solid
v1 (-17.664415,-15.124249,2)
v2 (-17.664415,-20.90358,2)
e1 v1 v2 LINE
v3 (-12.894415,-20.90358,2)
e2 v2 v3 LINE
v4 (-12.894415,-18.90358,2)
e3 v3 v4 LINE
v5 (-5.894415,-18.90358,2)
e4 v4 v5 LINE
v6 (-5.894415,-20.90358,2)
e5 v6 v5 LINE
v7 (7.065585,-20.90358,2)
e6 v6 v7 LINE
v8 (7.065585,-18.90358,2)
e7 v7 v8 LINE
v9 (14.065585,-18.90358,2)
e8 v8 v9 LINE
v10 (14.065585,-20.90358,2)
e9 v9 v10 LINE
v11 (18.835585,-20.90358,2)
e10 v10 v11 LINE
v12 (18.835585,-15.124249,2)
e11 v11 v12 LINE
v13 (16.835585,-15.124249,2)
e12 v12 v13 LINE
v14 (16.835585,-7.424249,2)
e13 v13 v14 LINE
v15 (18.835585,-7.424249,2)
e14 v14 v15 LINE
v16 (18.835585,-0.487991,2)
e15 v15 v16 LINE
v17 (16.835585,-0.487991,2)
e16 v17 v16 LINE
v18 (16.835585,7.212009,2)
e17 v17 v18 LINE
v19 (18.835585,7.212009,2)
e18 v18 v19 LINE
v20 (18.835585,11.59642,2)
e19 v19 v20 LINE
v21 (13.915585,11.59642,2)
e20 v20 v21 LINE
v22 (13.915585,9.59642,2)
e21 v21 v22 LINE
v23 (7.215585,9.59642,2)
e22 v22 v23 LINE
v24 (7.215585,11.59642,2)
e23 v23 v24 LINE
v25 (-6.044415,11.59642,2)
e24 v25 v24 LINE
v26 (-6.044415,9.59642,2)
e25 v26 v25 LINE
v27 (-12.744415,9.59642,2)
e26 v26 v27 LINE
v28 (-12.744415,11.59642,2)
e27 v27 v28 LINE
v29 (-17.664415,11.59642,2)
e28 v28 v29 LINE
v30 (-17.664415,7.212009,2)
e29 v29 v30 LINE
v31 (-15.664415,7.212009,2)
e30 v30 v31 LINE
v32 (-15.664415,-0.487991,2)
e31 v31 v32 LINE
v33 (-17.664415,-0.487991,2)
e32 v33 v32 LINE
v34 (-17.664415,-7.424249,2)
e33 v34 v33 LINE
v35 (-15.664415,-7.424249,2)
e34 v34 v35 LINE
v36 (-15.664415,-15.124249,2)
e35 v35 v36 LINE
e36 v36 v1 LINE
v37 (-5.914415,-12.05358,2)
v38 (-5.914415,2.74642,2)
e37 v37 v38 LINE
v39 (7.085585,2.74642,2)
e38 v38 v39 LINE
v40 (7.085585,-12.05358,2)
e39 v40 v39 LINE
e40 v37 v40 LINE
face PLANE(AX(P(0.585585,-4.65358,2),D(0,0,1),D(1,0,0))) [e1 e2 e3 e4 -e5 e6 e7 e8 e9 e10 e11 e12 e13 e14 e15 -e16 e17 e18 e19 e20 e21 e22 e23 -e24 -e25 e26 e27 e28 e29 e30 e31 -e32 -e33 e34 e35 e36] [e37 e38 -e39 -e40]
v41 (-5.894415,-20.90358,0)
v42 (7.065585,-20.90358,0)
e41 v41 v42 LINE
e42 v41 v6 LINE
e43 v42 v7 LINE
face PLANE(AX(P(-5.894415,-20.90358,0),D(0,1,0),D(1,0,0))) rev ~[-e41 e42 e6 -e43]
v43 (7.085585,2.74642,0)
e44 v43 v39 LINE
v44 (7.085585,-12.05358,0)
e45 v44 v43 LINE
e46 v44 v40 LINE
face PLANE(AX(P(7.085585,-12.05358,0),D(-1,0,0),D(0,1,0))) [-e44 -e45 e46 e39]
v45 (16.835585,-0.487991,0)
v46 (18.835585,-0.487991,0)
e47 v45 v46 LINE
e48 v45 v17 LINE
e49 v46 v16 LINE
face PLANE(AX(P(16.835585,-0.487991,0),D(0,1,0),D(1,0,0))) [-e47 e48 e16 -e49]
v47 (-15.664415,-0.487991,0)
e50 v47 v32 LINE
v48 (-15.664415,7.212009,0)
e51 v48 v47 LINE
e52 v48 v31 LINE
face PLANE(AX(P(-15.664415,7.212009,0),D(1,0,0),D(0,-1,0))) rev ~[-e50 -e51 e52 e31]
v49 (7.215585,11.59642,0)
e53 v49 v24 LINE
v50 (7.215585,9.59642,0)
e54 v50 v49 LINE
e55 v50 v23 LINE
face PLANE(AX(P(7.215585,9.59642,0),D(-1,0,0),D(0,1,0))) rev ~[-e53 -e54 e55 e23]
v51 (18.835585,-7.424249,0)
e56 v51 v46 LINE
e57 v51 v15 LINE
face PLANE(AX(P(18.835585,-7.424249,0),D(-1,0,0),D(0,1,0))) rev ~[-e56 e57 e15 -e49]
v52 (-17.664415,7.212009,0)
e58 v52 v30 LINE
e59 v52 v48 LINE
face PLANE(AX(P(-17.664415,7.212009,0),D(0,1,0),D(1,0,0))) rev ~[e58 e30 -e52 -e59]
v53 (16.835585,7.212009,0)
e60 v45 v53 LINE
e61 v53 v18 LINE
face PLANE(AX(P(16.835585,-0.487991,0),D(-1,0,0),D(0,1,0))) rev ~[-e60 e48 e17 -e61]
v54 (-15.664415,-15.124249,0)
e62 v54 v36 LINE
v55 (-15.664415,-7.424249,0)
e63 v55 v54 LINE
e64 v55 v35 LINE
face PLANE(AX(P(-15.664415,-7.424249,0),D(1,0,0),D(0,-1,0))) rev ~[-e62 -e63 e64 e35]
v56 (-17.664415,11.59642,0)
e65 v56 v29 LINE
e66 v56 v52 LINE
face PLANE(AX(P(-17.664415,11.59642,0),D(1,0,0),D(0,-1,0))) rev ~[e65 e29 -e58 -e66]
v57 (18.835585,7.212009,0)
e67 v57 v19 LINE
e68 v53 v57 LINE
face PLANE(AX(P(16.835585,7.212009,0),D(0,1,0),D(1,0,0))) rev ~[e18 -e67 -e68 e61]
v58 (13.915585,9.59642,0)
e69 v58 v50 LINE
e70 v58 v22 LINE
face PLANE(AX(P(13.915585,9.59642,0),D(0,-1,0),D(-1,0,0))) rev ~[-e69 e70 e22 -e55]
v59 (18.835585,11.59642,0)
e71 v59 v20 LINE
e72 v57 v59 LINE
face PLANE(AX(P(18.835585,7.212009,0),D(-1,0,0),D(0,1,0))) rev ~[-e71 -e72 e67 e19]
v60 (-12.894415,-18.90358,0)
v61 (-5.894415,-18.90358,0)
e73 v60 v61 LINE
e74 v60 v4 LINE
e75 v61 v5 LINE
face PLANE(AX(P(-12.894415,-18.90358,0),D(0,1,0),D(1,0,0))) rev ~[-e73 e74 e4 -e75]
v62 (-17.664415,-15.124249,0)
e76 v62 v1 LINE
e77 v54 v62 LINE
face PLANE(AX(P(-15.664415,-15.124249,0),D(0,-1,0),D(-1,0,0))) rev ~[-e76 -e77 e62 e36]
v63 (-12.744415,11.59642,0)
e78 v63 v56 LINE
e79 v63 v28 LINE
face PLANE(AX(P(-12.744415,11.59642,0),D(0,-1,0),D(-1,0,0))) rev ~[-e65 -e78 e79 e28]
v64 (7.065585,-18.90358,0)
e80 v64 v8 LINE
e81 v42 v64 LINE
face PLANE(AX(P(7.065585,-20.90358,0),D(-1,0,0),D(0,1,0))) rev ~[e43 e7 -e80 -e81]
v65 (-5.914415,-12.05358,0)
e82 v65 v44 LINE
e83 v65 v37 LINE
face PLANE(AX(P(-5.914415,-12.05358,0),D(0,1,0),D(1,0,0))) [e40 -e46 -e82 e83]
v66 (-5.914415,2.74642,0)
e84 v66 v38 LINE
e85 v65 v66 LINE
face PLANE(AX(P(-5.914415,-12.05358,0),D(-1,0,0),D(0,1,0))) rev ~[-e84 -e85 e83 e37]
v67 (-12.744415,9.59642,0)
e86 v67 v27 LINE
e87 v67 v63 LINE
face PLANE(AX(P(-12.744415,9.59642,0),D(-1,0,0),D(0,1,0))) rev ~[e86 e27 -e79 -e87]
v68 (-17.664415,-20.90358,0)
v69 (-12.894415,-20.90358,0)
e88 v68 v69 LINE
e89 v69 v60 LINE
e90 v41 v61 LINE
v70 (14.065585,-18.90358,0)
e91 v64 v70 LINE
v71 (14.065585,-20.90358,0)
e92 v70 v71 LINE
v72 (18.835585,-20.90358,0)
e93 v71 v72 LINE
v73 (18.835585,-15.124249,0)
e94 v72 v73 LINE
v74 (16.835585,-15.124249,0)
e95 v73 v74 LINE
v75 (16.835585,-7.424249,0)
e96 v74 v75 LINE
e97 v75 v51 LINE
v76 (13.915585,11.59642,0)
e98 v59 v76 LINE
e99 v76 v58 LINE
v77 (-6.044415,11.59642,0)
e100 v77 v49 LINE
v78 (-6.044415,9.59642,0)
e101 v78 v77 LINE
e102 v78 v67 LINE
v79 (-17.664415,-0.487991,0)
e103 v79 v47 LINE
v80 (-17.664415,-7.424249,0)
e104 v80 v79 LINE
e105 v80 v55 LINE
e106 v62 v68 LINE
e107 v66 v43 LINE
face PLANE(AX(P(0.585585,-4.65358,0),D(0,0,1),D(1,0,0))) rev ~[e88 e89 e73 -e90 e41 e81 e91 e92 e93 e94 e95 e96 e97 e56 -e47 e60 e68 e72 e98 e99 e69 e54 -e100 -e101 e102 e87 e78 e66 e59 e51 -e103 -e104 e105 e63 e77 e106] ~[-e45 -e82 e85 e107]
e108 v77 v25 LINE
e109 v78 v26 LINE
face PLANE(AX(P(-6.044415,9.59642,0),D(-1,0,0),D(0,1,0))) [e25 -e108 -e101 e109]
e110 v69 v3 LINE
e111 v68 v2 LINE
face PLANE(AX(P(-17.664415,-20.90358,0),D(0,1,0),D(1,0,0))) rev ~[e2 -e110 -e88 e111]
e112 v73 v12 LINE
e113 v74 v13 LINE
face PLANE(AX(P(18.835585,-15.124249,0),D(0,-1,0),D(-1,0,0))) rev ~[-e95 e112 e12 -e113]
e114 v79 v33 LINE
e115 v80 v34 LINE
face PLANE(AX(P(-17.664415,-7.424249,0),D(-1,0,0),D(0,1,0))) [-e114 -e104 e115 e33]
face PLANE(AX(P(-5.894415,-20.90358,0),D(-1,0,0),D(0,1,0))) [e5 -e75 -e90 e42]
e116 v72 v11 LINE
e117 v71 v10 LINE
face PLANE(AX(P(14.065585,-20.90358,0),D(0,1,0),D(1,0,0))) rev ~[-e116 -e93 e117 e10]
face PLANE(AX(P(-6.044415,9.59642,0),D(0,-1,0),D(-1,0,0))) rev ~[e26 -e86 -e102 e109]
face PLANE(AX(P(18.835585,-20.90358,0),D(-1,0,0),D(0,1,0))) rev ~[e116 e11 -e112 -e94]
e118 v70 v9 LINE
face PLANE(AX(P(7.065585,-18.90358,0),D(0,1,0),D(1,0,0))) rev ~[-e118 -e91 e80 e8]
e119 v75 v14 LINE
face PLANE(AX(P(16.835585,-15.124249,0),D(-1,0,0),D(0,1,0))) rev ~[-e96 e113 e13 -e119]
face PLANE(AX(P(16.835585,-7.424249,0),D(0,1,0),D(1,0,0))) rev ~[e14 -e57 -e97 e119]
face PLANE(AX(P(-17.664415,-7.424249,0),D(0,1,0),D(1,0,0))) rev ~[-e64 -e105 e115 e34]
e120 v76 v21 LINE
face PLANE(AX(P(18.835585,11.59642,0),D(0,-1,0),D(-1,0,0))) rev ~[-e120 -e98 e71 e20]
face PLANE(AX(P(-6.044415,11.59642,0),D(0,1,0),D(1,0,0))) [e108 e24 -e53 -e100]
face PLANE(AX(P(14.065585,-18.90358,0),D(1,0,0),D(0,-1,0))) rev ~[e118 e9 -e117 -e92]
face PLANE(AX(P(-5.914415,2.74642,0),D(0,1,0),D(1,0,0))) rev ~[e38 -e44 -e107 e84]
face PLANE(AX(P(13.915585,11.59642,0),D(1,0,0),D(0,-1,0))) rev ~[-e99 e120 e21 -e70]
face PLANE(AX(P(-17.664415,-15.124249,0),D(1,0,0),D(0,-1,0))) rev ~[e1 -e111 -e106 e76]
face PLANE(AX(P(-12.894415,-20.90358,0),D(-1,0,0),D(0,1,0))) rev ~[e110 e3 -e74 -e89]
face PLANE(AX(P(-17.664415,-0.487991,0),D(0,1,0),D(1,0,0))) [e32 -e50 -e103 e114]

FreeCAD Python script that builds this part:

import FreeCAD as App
import Part
import Sketcher
Q = App.Units.Quantity

doc = App.newDocument("Part")
body = doc.addObject("PartDesign::Body", "Body")

# Sketch on XY plane
sketch1 = doc.addObject("Sketcher::SketchObject", "Sketch")
body.addObject(sketch1)
sketch1.AttachmentSupport = (doc.XY_Plane, [""])
sketch1.MapMode = "FlatFace"
sketch1.addGeometry(Part.LineSegment(App.Vector(-15.7, 7.2, 0), App.Vector(-15.7, -0.5, 0)), False)
sketch1.addGeometry(Part.LineSegment(App.Vector(-15.7, -0.5, 0), App.Vector(-17.7, -0.5, 0)), False)
sketch1.addGeometry(Part.LineSegment(App.Vector(-17.7, -0.5, 0), App.Vector(-17.7, -7.4, 0)), False)
sketch1.addGeometry(Part.LineSegment(App.Vector(-17.7, -7.4, 0), App.Vector(-15.7, -7.4, 0)), False)
sketch1.addGeometry(Part.LineSegment(App.Vector(-15.7, -7.4, 0), App.Vector(-15.7, -15.1, 0)), False)
sketch1.addGeometry(Part.LineSegment(App.Vector(-15.7, -15.1, 0), App.Vector(-17.7, -15.1, 0)), False)
sketch1.addGeometry(Part.LineSegment(App.Vector(-17.7, -15.1, 0), App.Vector(-17.7, -20.9, 0)), False)
sketch1.addGeometry(Part.LineSegment(App.Vector(-17.7, -20.9, 0), App.Vector(-12.9, -20.9, 0)), False)
sketch1.addGeometry(Part.LineSegment(App.Vector(-12.9, -20.9, 0), App.Vector(-12.9, -18.9, 0)), False)
sketch1.addGeometry(Part.LineSegment(App.Vector(-12.9, -18.9, 0), App.Vector(-5.9, -18.9, 0)), False)
sketch1.addGeometry(Part.LineSegment(App.Vector(-5.9, -18.9, 0), App.Vector(-5.9, -20.9, 0)), False)
sketch1.addGeometry(Part.LineSegment(App.Vector(-5.9, -20.9, 0), App.Vector(7.1, -20.9, 0)), False)
sketch1.addGeometry(Part.LineSegment(App.Vector(7.1, -20.9, 0), App.Vector(7.1, -18.9, 0)), False)
sketch1.addGeometry(Part.LineSegment(App.Vector(7.1, -18.9, 0), App.Vector(14.1, -18.9, 0)), False)
sketch1.addGeometry(Part.LineSegment(App.Vector(14.1, -18.9, 0), App.Vector(14.1, -20.9, 0)), False)
sketch1.addGeometry(Part.LineSegment(App.Vector(14.1, -20.9, 0), App.Vector(18.8, -20.9, 0)), False)
sketch1.addGeometry(Part.LineSegment(App.Vector(18.8, -20.9, 0), App.Vector(18.8, -15.1, 0)), False)
sketch1.addGeometry(Part.LineSegment(App.Vector(18.8, -15.1, 0), App.Vector(16.8, -15.1, 0)), False)
sketch1.addGeometry(Part.LineSegment(App.Vector(16.8, -15.1, 0), App.Vector(16.8, -7.4, 0)), False)
sketch1.addGeometry(Part.LineSegment(App.Vector(16.8, -7.4, 0), App.Vector(18.8, -7.4, 0)), False)
sketch1.addGeometry(Part.LineSegment(App.Vector(18.8, -7.4, 0), App.Vector(18.8, -0.5, 0)), False)
sketch1.addGeometry(Part.LineSegment(App.Vector(18.8, -0.5, 0), App.Vector(16.8, -0.5, 0)), False)
sketch1.addGeometry(Part.LineSegment(App.Vector(16.8, -0.5, 0), App.Vector(16.8, 7.2, 0)), False)
sketch1.addGeometry(Part.LineSegment(App.Vector(16.8, 7.2, 0), App.Vector(18.8, 7.2, 0)), False)
sketch1.addGeometry(Part.LineSegment(App.Vector(18.8, 7.2, 0), App.Vector(18.8, 11.6, 0)), False)
sketch1.addGeometry(Part.LineSegment(App.Vector(18.8, 11.6, 0), App.Vector(13.9, 11.6, 0)), False)
sketch1.addGeometry(Part.LineSegment(App.Vector(13.9, 11.6, 0), App.Vector(13.9, 9.6, 0)), False)
sketch1.addGeometry(Part.LineSegment(App.Vector(13.9, 9.6, 0), App.Vector(7.2, 9.6, 0)), False)
sketch1.addGeometry(Part.LineSegment(App.Vector(7.2, 9.6, 0), App.Vector(7.2, 11.6, 0)), False)
sketch1.addGeometry(Part.LineSegment(App.Vector(7.2, 11.6, 0), App.Vector(-6, 11.6, 0)), False)
sketch1.addGeometry(Part.LineSegment(App.Vector(-6, 11.6, 0), App.Vector(-6, 9.6, 0)), False)
sketch1.addGeometry(Part.LineSegment(App.Vector(-6, 9.6, 0), App.Vector(-12.7, 9.6, 0)), False)
sketch1.addGeometry(Part.LineSegment(App.Vector(-12.7, 9.6, 0), App.Vector(-12.7, 11.6, 0)), False)
sketch1.addGeometry(Part.LineSegment(App.Vector(-12.7, 11.6, 0), App.Vector(-17.7, 11.6, 0)), False)
sketch1.addGeometry(Part.LineSegment(App.Vector(-17.7, 11.6, 0), App.Vector(-17.7, 7.2, 0)), False)
sketch1.addGeometry(Part.LineSegment(App.Vector(-17.7, 7.2, 0), App.Vector(-15.7, 7.2, 0)), False)
sketch1.addGeometry(Part.LineSegment(App.Vector(7.1, -12.1, 0), App.Vector(-5.9, -12.1, 0)), False)
sketch1.addGeometry(Part.LineSegment(App.Vector(-5.9, -12.1, 0), App.Vector(-5.9, 2.7, 0)), False)
sketch1.addGeometry(Part.LineSegment(App.Vector(-5.9, 2.7, 0), App.Vector(7.1, 2.7, 0)), False)
sketch1.addGeometry(Part.LineSegment(App.Vector(7.1, 2.7, 0), App.Vector(7.1, -12.1, 0)), False)
sketch1.addConstraint(Sketcher.Constraint("Coincident", 0, 2, 1, 1))
sketch1.addConstraint(Sketcher.Constraint("Coincident", 1, 2, 2, 1))
sketch1.addConstraint(Sketcher.Constraint("Coincident", 2, 2, 3, 1))
sketch1.addConstraint(Sketcher.Constraint("Coincident", 3, 2, 4, 1))
sketch1.addConstraint(Sketcher.Constraint("Coincident", 4, 2, 5, 1))
sketch1.addConstraint(Sketcher.Constraint("Coincident", 5, 2, 6, 1))
sketch1.addConstraint(Sketcher.Constraint("Coincident", 6, 2, 7, 1))
sketch1.addConstraint(Sketcher.Constraint("Coincident", 7, 2, 8, 1))
sketch1.addConstraint(Sketcher.Constraint("Coincident", 8, 2, 9, 1))
sketch1.addConstraint(Sketcher.Constraint("Coincident", 9, 2, 10, 1))
sketch1.addConstraint(Sketcher.Constraint("Coincident", 10, 2, 11, 1))
sketch1.addConstraint(Sketcher.Constraint("Coincident", 11, 2, 12, 1))
sketch1.addConstraint(Sketcher.Constraint("Coincident", 12, 2, 13, 1))
sketch1.addConstraint(Sketcher.Constraint("Coincident", 13, 2, 14, 1))
sketch1.addConstraint(Sketcher.Constraint("Coincident", 14, 2, 15, 1))
sketch1.addConstraint(Sketcher.Constraint("Coincident", 15, 2, 16, 1))
sketch1.addConstraint(Sketcher.Constraint("Coincident", 16, 2, 17, 1))
sketch1.addConstraint(Sketcher.Constraint("Coincident", 17, 2, 18, 1))
sketch1.addConstraint(Sketcher.Constraint("Coincident", 18, 2, 19, 1))
sketch1.addConstraint(Sketcher.Constraint("Coincident", 19, 2, 20, 1))
sketch1.addConstraint(Sketcher.Constraint("Coincident", 20, 2, 21, 1))
sketch1.addConstraint(Sketcher.Constraint("Coincident", 21, 2, 22, 1))
sketch1.addConstraint(Sketcher.Constraint("Coincident", 22, 2, 23, 1))
sketch1.addConstraint(Sketcher.Constraint("Coincident", 23, 2, 24, 1))
sketch1.addConstraint(Sketcher.Constraint("Coincident", 24, 2, 25, 1))
sketch1.addConstraint(Sketcher.Constraint("Coincident", 25, 2, 26, 1))
sketch1.addConstraint(Sketcher.Constraint("Coincident", 26, 2, 27, 1))
sketch1.addConstraint(Sketcher.Constraint("Coincident", 27, 2, 28, 1))
sketch1.addConstraint(Sketcher.Constraint("Coincident", 28, 2, 29, 1))
sketch1.addConstraint(Sketcher.Constraint("Coincident", 29, 2, 30, 1))
sketch1.addConstraint(Sketcher.Constraint("Coincident", 30, 2, 31, 1))
sketch1.addConstraint(Sketcher.Constraint("Coincident", 31, 2, 32, 1))
sketch1.addConstraint(Sketcher.Constraint("Coincident", 32, 2, 33, 1))
sketch1.addConstraint(Sketcher.Constraint("Coincident", 33, 2, 34, 1))
sketch1.addConstraint(Sketcher.Constraint("Coincident", 34, 2, 35, 1))
sketch1.addConstraint(Sketcher.Constraint("Coincident", 35, 2, 0, 1))
sketch1.addConstraint(Sketcher.Constraint("Coincident", 36, 2, 37, 1))
sketch1.addConstraint(Sketcher.Constraint("Coincident", 37, 2, 38, 1))
sketch1.addConstraint(Sketcher.Constraint("Coincident", 38, 2, 39, 1))
sketch1.addConstraint(Sketcher.Constraint("Coincident", 39, 2, 36, 1))
sketch1.addConstraint(Sketcher.Constraint("Vertical", 0))
sketch1.addConstraint(Sketcher.Constraint("Horizontal", 1))
sketch1.addConstraint(Sketcher.Constraint("Vertical", 2))
sketch1.addConstraint(Sketcher.Constraint("Horizontal", 3))
sketch1.addConstraint(Sketcher.Constraint("Vertical", 4))
sketch1.addConstraint(Sketcher.Constraint("Horizontal", 5))
sketch1.addConstraint(Sketcher.Constraint("Vertical", 6))
sketch1.addConstraint(Sketcher.Constraint("Horizontal", 7))
sketch1.addConstraint(Sketcher.Constraint("Vertical", 8))
sketch1.addConstraint(Sketcher.Constraint("Horizontal", 9))
sketch1.addConstraint(Sketcher.Constraint("Vertical", 10))
sketch1.addConstraint(Sketcher.Constraint("Horizontal", 11))
sketch1.addConstraint(Sketcher.Constraint("Vertical", 12))
sketch1.addConstraint(Sketcher.Constraint("Horizontal", 13))
sketch1.addConstraint(Sketcher.Constraint("Vertical", 14))
sketch1.addConstraint(Sketcher.Constraint("Horizontal", 15))
sketch1.addConstraint(Sketcher.Constraint("Vertical", 16))
sketch1.addConstraint(Sketcher.Constraint("Horizontal", 17))
sketch1.addConstraint(Sketcher.Constraint("Vertical", 18))
sketch1.addConstraint(Sketcher.Constraint("Horizontal", 19))
sketch1.addConstraint(Sketcher.Constraint("Vertical", 20))
sketch1.addConstraint(Sketcher.Constraint("Horizontal", 21))
sketch1.addConstraint(Sketcher.Constraint("Vertical", 22))
sketch1.addConstraint(Sketcher.Constraint("Horizontal", 23))
sketch1.addConstraint(Sketcher.Constraint("Vertical", 24))
sketch1.addConstraint(Sketcher.Constraint("Horizontal", 25))
sketch1.addConstraint(Sketcher.Constraint("Vertical", 26))
sketch1.addConstraint(Sketcher.Constraint("Horizontal", 27))
sketch1.addConstraint(Sketcher.Constraint("Vertical", 28))
sketch1.addConstraint(Sketcher.Constraint("Horizontal", 29))
sketch1.addConstraint(Sketcher.Constraint("Vertical", 30))
sketch1.addConstraint(Sketcher.Constraint("Horizontal", 31))
sketch1.addConstraint(Sketcher.Constraint("Vertical", 32))
sketch1.addConstraint(Sketcher.Constraint("Horizontal", 33))
sketch1.addConstraint(Sketcher.Constraint("Vertical", 34))
sketch1.addConstraint(Sketcher.Constraint("Horizontal", 35))
sketch1.addConstraint(Sketcher.Constraint("Horizontal", 36))
sketch1.addConstraint(Sketcher.Constraint("Vertical", 37))
sketch1.addConstraint(Sketcher.Constraint("Horizontal", 38))
sketch1.addConstraint(Sketcher.Constraint("Vertical", 39))
sketch1.addConstraint(Sketcher.Constraint("Horizontal", 7, 2, 10, 2))
sketch1.addConstraint(Sketcher.Constraint("Horizontal", 9, 2, 12, 2))
sketch1.addConstraint(Sketcher.Constraint("Horizontal", 11, 2, 14, 2))
sketch1.addConstraint(Sketcher.Constraint("Horizontal", 5, 2, 16, 2))
sketch1.addConstraint(Sketcher.Constraint("Horizontal", 3, 2, 18, 2))
sketch1.addConstraint(Sketcher.Constraint("Horizontal", 1, 2, 20, 2))
sketch1.addConstraint(Sketcher.Constraint("Horizontal", 25, 2, 28, 2))
sketch1.addConstraint(Sketcher.Constraint("Horizontal", 27, 2, 30, 2))
sketch1.addConstraint(Sketcher.Constraint("Horizontal", 29, 2, 32, 2))
sketch1.addConstraint(Sketcher.Constraint("Horizontal", 23, 2, 34, 2))
sketch1.addConstraint(Sketcher.Constraint("Vertical", 0, 2, 3, 2))
sketch1.addConstraint(Sketcher.Constraint("Vertical", 2, 2, 5, 2))
sketch1.addConstraint(Sketcher.Constraint("Vertical", 16, 2, 19, 2))
sketch1.addConstraint(Sketcher.Constraint("Vertical", 18, 2, 21, 2))
sketch1.addConstraint(Sketcher.Constraint("Vertical", 20, 2, 23, 2))
sketch1.addConstraint(Sketcher.Constraint("Vertical", 6, 2, 33, 2))
sketch1.addConstraint(Sketcher.Constraint("Equal", 9, 13))
sketch1.addConstraint(Sketcher.Constraint("Equal", 7, 15))
sketch1.addConstraint(Sketcher.Constraint("Equal", 5, 17))
sketch1.addConstraint(Sketcher.Constraint("Equal", 27, 31))
sketch1.addConstraint(Sketcher.Constraint("Equal", 25, 33))
sketch1.addConstraint(Sketcher.Constraint("Equal", 0, 4))
sketch1.addConstraint(Sketcher.Constraint("Equal", 35, 8))
sketch1.addConstraint(Sketcher.Constraint("Equal", 14, 26))
sketch1.addConstraint(Sketcher.Constraint("DistanceX", 1, 2, 1, 1, Q("2 mm")))
sketch1.addConstraint(Sketcher.Constraint("DistanceX", 9, 1, 9, 2, Q("7 mm")))
sketch1.addConstraint(Sketcher.Constraint("DistanceX", 36, 2, 36, 1, Q("13 mm")))
sketch1.addConstraint(Sketcher.Constraint("DistanceX", 27, 2, 27, 1, Q("6.7 mm")))
sketch1.addConstraint(Sketcher.Constraint("DistanceY", 0, 2, 0, 1, Q("7.7 mm")))
sketch1.addConstraint(Sketcher.Constraint("DistanceY", 37, 1, 37, 2, Q("14.8 mm")))
sketch1.addConstraint(Sketcher.Constraint("DistanceX", 7, 1, 7, 2, Q("4.77 mm")))
sketch1.addConstraint(Sketcher.Constraint("DistanceX", 11, 1, 11, 2, Q("12.96 mm")))
sketch1.addConstraint(Sketcher.Constraint("DistanceX", 25, 2, 25, 1, Q("4.92 mm")))
sketch1.addConstraint(Sketcher.Constraint("DistanceX", 36, 2, 9, 2, Q("0.02 mm")))
sketch1.addConstraint(Sketcher.Constraint("DistanceY", 9, 2, 36, 2, Q("6.85 mm")))
sketch1.addConstraint(Sketcher.Constraint("DistanceY", 37, 2, 30, 2, Q("6.85 mm")))
sketch1.addConstraint(Sketcher.Constraint("DistanceY", 2, 2, 2, 1, Q("6.936259 mm")))
sketch1.addConstraint(Sketcher.Constraint("DistanceY", 6, 2, 6, 1, Q("5.77933 mm")))
sketch1.addConstraint(Sketcher.Constraint("DistanceY", 0, 2, -1, 1, Q("0.487991 mm")))
sketch1.addConstraint(Sketcher.Constraint("DistanceX", 0, 2, -1, 1, Q("15.664415 mm")))
pad1 = doc.addObject("PartDesign::Pad", "Pad")
body.addObject(pad1)
pad1.Profile = sketch1
pad1.Length = 2

doc.recompute()
